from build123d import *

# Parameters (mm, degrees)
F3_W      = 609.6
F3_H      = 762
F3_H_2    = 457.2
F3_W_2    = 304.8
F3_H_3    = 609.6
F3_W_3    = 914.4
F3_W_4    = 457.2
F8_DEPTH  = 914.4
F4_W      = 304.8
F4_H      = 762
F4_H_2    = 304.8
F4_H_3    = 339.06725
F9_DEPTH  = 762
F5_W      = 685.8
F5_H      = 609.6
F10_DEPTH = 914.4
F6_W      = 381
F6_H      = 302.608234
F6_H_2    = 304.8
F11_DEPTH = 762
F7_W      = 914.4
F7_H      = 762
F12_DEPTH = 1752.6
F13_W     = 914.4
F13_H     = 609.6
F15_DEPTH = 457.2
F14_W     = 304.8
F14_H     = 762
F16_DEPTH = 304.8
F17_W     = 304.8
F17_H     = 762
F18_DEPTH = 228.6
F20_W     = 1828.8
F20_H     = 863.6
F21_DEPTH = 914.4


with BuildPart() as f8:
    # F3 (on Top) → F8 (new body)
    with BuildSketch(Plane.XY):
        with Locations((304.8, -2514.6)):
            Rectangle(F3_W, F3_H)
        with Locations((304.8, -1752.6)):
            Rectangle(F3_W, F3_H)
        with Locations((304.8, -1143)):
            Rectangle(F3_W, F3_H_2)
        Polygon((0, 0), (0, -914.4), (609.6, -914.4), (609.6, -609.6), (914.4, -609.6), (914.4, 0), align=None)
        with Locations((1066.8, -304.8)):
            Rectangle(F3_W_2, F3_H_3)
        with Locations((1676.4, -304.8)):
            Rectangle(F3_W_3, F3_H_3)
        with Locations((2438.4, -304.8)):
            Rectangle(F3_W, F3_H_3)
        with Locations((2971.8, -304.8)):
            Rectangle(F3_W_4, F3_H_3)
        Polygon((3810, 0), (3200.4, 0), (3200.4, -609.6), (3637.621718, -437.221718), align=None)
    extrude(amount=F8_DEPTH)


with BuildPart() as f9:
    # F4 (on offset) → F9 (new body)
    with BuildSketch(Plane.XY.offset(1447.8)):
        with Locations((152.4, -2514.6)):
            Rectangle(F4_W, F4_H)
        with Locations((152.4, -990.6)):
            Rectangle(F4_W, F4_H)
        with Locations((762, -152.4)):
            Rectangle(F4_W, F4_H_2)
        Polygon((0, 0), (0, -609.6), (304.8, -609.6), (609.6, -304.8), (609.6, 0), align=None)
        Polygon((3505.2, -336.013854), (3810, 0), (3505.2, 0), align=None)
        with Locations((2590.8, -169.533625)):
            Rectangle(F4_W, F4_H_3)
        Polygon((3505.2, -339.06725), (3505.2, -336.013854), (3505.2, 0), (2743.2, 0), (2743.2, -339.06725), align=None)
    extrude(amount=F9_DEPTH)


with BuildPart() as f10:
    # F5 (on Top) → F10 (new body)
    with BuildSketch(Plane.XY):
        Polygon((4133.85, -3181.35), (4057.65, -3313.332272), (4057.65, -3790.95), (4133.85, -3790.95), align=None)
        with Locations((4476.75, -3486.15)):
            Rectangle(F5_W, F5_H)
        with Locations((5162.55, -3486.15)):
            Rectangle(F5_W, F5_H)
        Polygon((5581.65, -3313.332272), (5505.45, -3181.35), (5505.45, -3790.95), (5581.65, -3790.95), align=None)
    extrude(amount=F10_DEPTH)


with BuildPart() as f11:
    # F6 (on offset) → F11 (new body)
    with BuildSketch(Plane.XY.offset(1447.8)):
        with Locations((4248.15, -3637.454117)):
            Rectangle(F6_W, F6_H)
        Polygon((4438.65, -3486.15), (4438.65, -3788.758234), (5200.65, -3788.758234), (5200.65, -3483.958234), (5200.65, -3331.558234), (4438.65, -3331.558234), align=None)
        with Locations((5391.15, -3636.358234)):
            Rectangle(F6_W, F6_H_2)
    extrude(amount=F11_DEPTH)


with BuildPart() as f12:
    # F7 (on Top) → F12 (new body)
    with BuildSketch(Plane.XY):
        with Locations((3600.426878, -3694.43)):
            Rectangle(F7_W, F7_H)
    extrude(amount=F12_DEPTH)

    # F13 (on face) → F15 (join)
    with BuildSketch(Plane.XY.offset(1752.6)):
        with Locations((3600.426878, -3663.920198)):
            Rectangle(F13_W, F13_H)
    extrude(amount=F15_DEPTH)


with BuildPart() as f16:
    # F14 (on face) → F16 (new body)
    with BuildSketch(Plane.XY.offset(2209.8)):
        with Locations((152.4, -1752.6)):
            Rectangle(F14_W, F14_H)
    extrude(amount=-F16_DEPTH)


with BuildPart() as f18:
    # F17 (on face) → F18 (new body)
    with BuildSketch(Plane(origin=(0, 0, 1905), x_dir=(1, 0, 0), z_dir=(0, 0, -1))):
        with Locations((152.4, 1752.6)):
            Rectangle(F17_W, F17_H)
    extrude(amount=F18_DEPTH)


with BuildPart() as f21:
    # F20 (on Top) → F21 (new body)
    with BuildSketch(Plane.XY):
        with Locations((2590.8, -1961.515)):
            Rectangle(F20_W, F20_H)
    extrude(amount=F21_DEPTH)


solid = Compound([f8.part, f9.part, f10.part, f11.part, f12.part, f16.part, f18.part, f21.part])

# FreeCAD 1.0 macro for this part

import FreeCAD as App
import Part
import Sketcher

V = App.Vector
Q = App.Units.Quantity


def add_polygon(sketch, points):
    """Adds a closed chain of lines whose ends are joined by coincident constraints."""
    first, n = sketch.GeometryCount, len(points)
    for a, b in zip(points, points[1:] + points[:1]):
        sketch.addGeometry(Part.LineSegment(App.Vector(*a, 0), App.Vector(*b, 0)), False)
    for i in range(n):
        sketch.addConstraint(Sketcher.Constraint("Coincident", first + i, 2, first + (i + 1) % n, 1))

doc = App.newDocument("Part")
body = doc.addObject("PartDesign::Body", "Body")

# Sketch on XY plane
sketch1 = body.newObject("Sketcher::SketchObject", "Sketch")
sketch1.AttachmentSupport = (doc.getObject("XY_Plane"), [""])
sketch1.MapMode = "FlatFace"
add_polygon(sketch1, [(0, -2895.6), (609.6, -2895.6), (609.6, -609.6), (3200.4, -609.6), (3637.621718, -437.221718), (3810, 0), (0, 0)])  # lines 0-6
sketch1.addConstraint([
    Sketcher.Constraint("Horizontal", 0),
    Sketcher.Constraint("Vertical", 1),
    Sketcher.Constraint("Horizontal", 2),
    Sketcher.Constraint("Horizontal", 5),
    Sketcher.Constraint("Vertical", 6),
    Sketcher.Constraint("Coincident", 5, 2, -1, 1),
    Sketcher.Constraint("Equal", 3, 4),
    Sketcher.Constraint("DistanceX", 0, 1, 0, 2, Q("24 in")),
    Sketcher.Constraint("DistanceX", 2, 1, 2, 2, Q("102 in")),
    Sketcher.Constraint("DistanceX", 5, 2, 5, 1, Q("150 in")),
    Sketcher.Constraint("DistanceY", 1, 1, 1, 2, Q("90 in")),
    Sketcher.Constraint("DistanceY", 6, 2, 6, 1, Q("114 in")),
    Sketcher.Constraint("Distance", 3, Q("469.975641 mm")),
])
pad1 = body.newObject("PartDesign::Pad", "Pad")
pad1.Profile = sketch1
pad1.Length = Q("36 in")
body2 = doc.addObject("PartDesign::Body", "Body001")
body2.AllowCompound = True

# Sketch on XY plane
sketch2 = body2.newObject("Sketcher::SketchObject", "Sketch001")
sketch2.AttachmentSupport = (doc.getObject("XY_Plane001"), [""])
sketch2.MapMode = "FlatFace"
sketch2.AttachmentOffset = App.Placement(V(0, 0, 57 * 25.4), App.Rotation())
add_polygon(sketch2, [(0, -2133.6), (0, -2895.6), (304.8, -2895.6), (304.8, -2133.6)])  # lines 0-3
add_polygon(sketch2, [(0, -1371.6), (304.8, -1371.6), (304.8, -609.6), (609.6, -304.8), (914.4, -304.8), (914.4, 0), (0, 0)])  # lines 4-10
add_polygon(sketch2, [(3505.2, -336.013854), (3810, 0), (2438.4, 0), (2438.4, -339.06725), (3505.2, -339.06725)])  # lines 11-15
sketch2.addConstraint([
    Sketcher.Constraint("Vertical", 0),
    Sketcher.Constraint("Horizontal", 1),
    Sketcher.Constraint("Vertical", 2),
    Sketcher.Constraint("Horizontal", 3),
    Sketcher.Constraint("Horizontal", 4),
    Sketcher.Constraint("Vertical", 5),
    Sketcher.Constraint("Horizontal", 7),
    Sketcher.Constraint("Vertical", 8),
    Sketcher.Constraint("Horizontal", 9),
    Sketcher.Constraint("Vertical", 10),
    Sketcher.Constraint("Horizontal", 12),
    Sketcher.Constraint("Vertical", 13),
    Sketcher.Constraint("Horizontal", 14),
    Sketcher.Constraint("Vertical", 15),
    Sketcher.Constraint("Coincident", 9, 2, -1, 1),
    Sketcher.Constraint("PointOnObject", 0, 2, -2),
    Sketcher.Constraint("PointOnObject", 11, 2, -1),
    Sketcher.Constraint("Vertical", 2, 2, 4, 2),
    Sketcher.Constraint("Equal", 4, 7),
    Sketcher.Constraint("Equal", 2, 5),
    Sketcher.Constraint("Equal", 7, 8),
    Sketcher.Constraint("Equal", 12, 10),
    Sketcher.Constraint("DistanceX", 1, 1, 1, 2, Q("12 in")),
    Sketcher.Constraint("DistanceX", 9, 2, 9, 1, Q("36 in")),
    Sketcher.Constraint("DistanceX", 12, 2, 12, 1, Q("54 in")),
    Sketcher.Constraint("DistanceX", 14, 1, 14, 2, Q("42 in")),
    Sketcher.Constraint("DistanceY", 0, 2, 0, 1, Q("30 in")),
    Sketcher.Constraint("DistanceY", 0, 2, -1, 1, Q("114 in")),
    Sketcher.Constraint("DistanceX", -1, 1, 11, 2, Q("150 in")),
    Sketcher.Constraint("DistanceY", 13, 2, 13, 1, Q("339.06725 mm")),
    Sketcher.Constraint("Distance", 11, Q("453.661052 mm")),
])
pad2 = body2.newObject("PartDesign::Pad", "Pad001")
pad2.Profile = sketch2
pad2.Length = Q("30 in")
body3 = doc.addObject("PartDesign::Body", "Body002")

# Sketch on XY plane
sketch3 = body3.newObject("Sketcher::SketchObject", "Sketch002")
sketch3.AttachmentSupport = (doc.getObject("XY_Plane002"), [""])
sketch3.MapMode = "FlatFace"
add_polygon(sketch3, [(4133.85, -3181.35), (4057.65, -3313.332272), (4057.65, -3790.95), (5581.65, -3790.95), (5581.65, -3313.332272), (5505.45, -3181.35)])  # lines 0-5
sketch3.addConstraint([
    Sketcher.Constraint("Vertical", 1),
    Sketcher.Constraint("Horizontal", 2),
    Sketcher.Constraint("Vertical", 3),
    Sketcher.Constraint("Horizontal", 5),
    Sketcher.Constraint("Horizontal", 0, 2, 3, 2),
    Sketcher.Constraint("Equal", 0, 4),
    Sketcher.Constraint("DistanceX", 2, 1, 2, 2, Q("60 in")),
    Sketcher.Constraint("DistanceX", 5, 2, 5, 1, Q("54 in")),
    Sketcher.Constraint("Distance", 0, Q("6 in")),
    Sketcher.Constraint("DistanceY", 2, 2, 4, 2, Q("24 in")),
    Sketcher.Constraint("DistanceX", -1, 1, 0, 2, Q("159.75 in")),
    Sketcher.Constraint("DistanceY", 1, 2, -1, 1, Q("149.25 in")),
])
pad3 = body3.newObject("PartDesign::Pad", "Pad002")
pad3.Profile = sketch3
pad3.Length = Q("36 in")
body4 = doc.addObject("PartDesign::Body", "Body003")

# Sketch on XY plane
sketch4 = body4.newObject("Sketcher::SketchObject", "Sketch003")
sketch4.AttachmentSupport = (doc.getObject("XY_Plane003"), [""])
sketch4.MapMode = "FlatFace"
sketch4.AttachmentOffset = App.Placement(V(0, 0, 57 * 25.4), App.Rotation())
add_polygon(sketch4, [(4057.65, -3486.15), (4057.65, -3788.758234), (5581.65, -3788.758234), (5581.65, -3483.958234), (5200.65, -3483.958234), (5200.65, -3331.558234), (4438.65, -3331.558234), (4438.65, -3486.15)])  # lines 0-7
sketch4.addConstraint([
    Sketcher.Constraint("Vertical", 0),
    Sketcher.Constraint("Horizontal", 1),
    Sketcher.Constraint("Vertical", 2),
    Sketcher.Constraint("Horizontal", 3),
    Sketcher.Constraint("Vertical", 4),
    Sketcher.Constraint("Horizontal", 5),
    Sketcher.Constraint("Vertical", 6),
    Sketcher.Constraint("Horizontal", 7),
    Sketcher.Constraint("Equal", 3, 7),
    Sketcher.Constraint("DistanceX", 1, 1, 1, 2, Q("60 in")),
    Sketcher.Constraint("DistanceX", 3, 2, 3, 1, Q("15 in")),
    Sketcher.Constraint("DistanceY", 2, 1, 2, 2, Q("12 in")),
    Sketcher.Constraint("DistanceY", 4, 1, 4, 2, Q("6 in")),
    Sketcher.Constraint("DistanceX", -1, 1, 0, 2, Q("159.75 in")),
    Sketcher.Constraint("DistanceY", 6, 2, -1, 1, Q("137.25 in")),
    Sketcher.Constraint("DistanceY", 0, 2, 0, 1, Q("302.608234 mm")),
])
pad4 = body4.newObject("PartDesign::Pad", "Pad003")
pad4.Profile = sketch4
pad4.Length = Q("30 in")
body5 = doc.addObject("PartDesign::Body", "Body004")

# Sketch on XY plane
sketch5 = body5.newObject("Sketcher::SketchObject", "Sketch004")
sketch5.AttachmentSupport = (doc.getObject("XY_Plane004"), [""])
sketch5.MapMode = "FlatFace"
add_polygon(sketch5, [(3143.226878, -3313.43), (3143.226878, -4075.43), (4057.626878, -4075.43), (4057.626878, -3313.43)])  # lines 0-3
sketch5.addConstraint([
    Sketcher.Constraint("Vertical", 0),
    Sketcher.Constraint("Horizontal", 1),
    Sketcher.Constraint("Vertical", 2),
    Sketcher.Constraint("Horizontal", 3),
    Sketcher.Constraint("DistanceX", 1, 1, 1, 2, Q("36 in")),
    Sketcher.Constraint("DistanceY", 0, 2, 0, 1, Q("30 in")),
    Sketcher.Constraint("DistanceY", 0, 2, -1, 1, Q("160.45 in")),
    Sketcher.Constraint("DistanceX", -1, 1, 1, 2, Q("4057.626878 mm")),
])
pad5 = body5.newObject("PartDesign::Pad", "Pad004")
pad5.Profile = sketch5
pad5.Length = Q("69 in")

# Sketch on XY plane
sketch6 = body5.newObject("Sketcher::SketchObject", "Sketch005")
sketch6.AttachmentSupport = (doc.getObject("XY_Plane004"), [""])
sketch6.MapMode = "FlatFace"
sketch6.AttachmentOffset = App.Placement(V(0, 0, 69 * 25.4), App.Rotation())
add_polygon(sketch6, [(3143.226878, -3359.120198), (3143.226878, -3968.720198), (4057.626878, -3968.720198), (4057.626878, -3359.120198)])  # lines 0-3
sketch6.addConstraint([
    Sketcher.Constraint("Vertical", 0),
    Sketcher.Constraint("Horizontal", 1),
    Sketcher.Constraint("Vertical", 2),
    Sketcher.Constraint("Horizontal", 3),
    Sketcher.Constraint("DistanceX", 1, 1, 1, 2, Q("36 in")),
    Sketcher.Constraint("DistanceY", 0, 2, 0, 1, Q("24 in")),
    Sketcher.Constraint("DistanceY", 2, 2, -1, 1, Q("3359.120198 mm")),
    Sketcher.Constraint("DistanceX", -1, 1, 1, 2, Q("4057.626878 mm")),
])
pad6 = body5.newObject("PartDesign::Pad", "Pad005")
pad6.Profile = sketch6
pad6.Length = Q("18 in")
body6 = doc.addObject("PartDesign::Body", "Body005")

# Sketch on XY plane
sketch7 = body6.newObject("Sketcher::SketchObject", "Sketch006")
sketch7.AttachmentSupport = (doc.getObject("XY_Plane005"), [""])
sketch7.MapMode = "FlatFace"
sketch7.AttachmentOffset = App.Placement(V(0, 0, 87 * 25.4), App.Rotation())
add_polygon(sketch7, [(0, -1371.6), (0, -2133.6), (304.8, -2133.6), (304.8, -1371.6)])  # lines 0-3
sketch7.addConstraint([
    Sketcher.Constraint("Vertical", 0),
    Sketcher.Constraint("Horizontal", 1),
    Sketcher.Constraint("Vertical", 2),
    Sketcher.Constraint("Horizontal", 3),
    Sketcher.Constraint("PointOnObject", 0, 2, -2),
    Sketcher.Constraint("DistanceX", 1, 1, 1, 2, Q("12 in")),
    Sketcher.Constraint("DistanceY", 0, 2, 0, 1, Q("30 in")),
    Sketcher.Constraint("DistanceY", 0, 2, -1, 1, Q("84 in")),
])
pad7 = body6.newObject("PartDesign::Pad", "Pad006")
pad7.Profile = sketch7
pad7.Length = Q("12 in")
pad7.Reversed = True
body7 = doc.addObject("PartDesign::Body", "Body006")

# Sketch on XY plane
sketch8 = body7.newObject("Sketcher::SketchObject", "Sketch007")
sketch8.AttachmentSupport = (doc.getObject("XY_Plane006"), [""])
sketch8.MapMode = "FlatFace"
sketch8.AttachmentOffset = App.Placement(V(0, 0, 75 * 25.4), App.Rotation())
add_polygon(sketch8, [(0, -2133.6), (0, -1371.6), (304.8, -1371.6), (304.8, -2133.6)])  # lines 0-3
sketch8.addConstraint([
    Sketcher.Constraint("Vertical", 0),
    Sketcher.Constraint("Horizontal", 1),
    Sketcher.Constraint("Vertical", 2),
    Sketcher.Constraint("Horizontal", 3),
    Sketcher.Constraint("PointOnObject", 0, 2, -2),
    Sketcher.Constraint("DistanceX", 1, 1, 1, 2, Q("12 in")),
    Sketcher.Constraint("DistanceY", 0, 1, 0, 2, Q("30 in")),
    Sketcher.Constraint("DistanceY", 0, 2, -1, 1, Q("54 in")),
])
pad8 = body7.newObject("PartDesign::Pad", "Pad007")
pad8.Profile = sketch8
pad8.Length = Q("9 in")
pad8.Reversed = True
body8 = doc.addObject("PartDesign::Body", "Body007")

# Sketch on XY plane
sketch9 = body8.newObject("Sketcher::SketchObject", "Sketch008")
sketch9.AttachmentSupport = (doc.getObject("XY_Plane007"), [""])
sketch9.MapMode = "FlatFace"
add_polygon(sketch9, [(1676.4, -1529.715), (1676.4, -2393.315), (3505.2, -2393.315), (3505.2, -1529.715)])  # lines 0-3
sketch9.addConstraint([
    Sketcher.Constraint("Vertical", 0),
    Sketcher.Constraint("Horizontal", 1),
    Sketcher.Constraint("Vertical", 2),
    Sketcher.Constraint("Horizontal", 3),
    Sketcher.Constraint("DistanceX", 1, 1, 1, 2, Q("72 in")),
    Sketcher.Constraint("DistanceY", 0, 2, 0, 1, Q("34 in")),
    Sketcher.Constraint("DistanceX", -1, 1, 0, 2, Q("66 in")),
    Sketcher.Constraint("DistanceY", 0, 2, -1, 1, Q("94.225 in")),
])
pad9 = body8.newObject("PartDesign::Pad", "Pad008")
pad9.Profile = sketch9
pad9.Length = Q("36 in")

doc.recompute()
